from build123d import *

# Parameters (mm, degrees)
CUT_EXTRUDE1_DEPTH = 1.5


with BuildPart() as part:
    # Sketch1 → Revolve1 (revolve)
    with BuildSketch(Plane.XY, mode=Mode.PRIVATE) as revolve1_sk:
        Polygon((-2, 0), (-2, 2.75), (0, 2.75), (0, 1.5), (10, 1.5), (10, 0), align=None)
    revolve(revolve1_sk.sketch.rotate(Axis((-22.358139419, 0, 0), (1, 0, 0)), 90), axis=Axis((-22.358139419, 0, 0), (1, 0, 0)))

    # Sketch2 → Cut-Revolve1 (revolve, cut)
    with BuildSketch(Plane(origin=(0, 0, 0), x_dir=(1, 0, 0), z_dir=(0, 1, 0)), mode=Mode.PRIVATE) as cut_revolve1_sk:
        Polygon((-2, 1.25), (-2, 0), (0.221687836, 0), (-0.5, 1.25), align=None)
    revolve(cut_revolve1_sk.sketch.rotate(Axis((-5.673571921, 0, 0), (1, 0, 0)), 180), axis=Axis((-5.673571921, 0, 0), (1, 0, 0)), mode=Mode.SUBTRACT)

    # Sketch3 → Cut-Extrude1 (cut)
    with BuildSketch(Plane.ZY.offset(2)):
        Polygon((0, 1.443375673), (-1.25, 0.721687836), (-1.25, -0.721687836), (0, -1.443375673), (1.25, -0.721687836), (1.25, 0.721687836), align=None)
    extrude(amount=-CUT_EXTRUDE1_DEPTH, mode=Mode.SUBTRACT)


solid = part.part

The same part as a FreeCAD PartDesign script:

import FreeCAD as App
import Part
import Sketcher

V = App.Vector
Q = App.Units.Quantity

doc = App.newDocument("Part")
body = doc.addObject("PartDesign::Body", "Body")

# Sketch on XY plane
sketch1 = doc.addObject("Sketcher::SketchObject", "Sketch")
body.addObject(sketch1)
sketch1.AttachmentSupport = (doc.XY_Plane, [""])
sketch1.MapMode = "FlatFace"
sketch1.addGeometry([
    Part.LineSegment(V(-2, 2.8, 0), V(-2, 0, 0)),  # 0
    Part.LineSegment(V(-2, 0, 0), V(10, 0, 0)),  # 1
    Part.LineSegment(V(10, 0, 0), V(10, 1.5, 0)),  # 2
    Part.LineSegment(V(10, 1.5, 0), V(0, 1.5, 0)),  # 3
    Part.LineSegment(V(0, 1.5, 0), V(0, 2.8, 0)),  # 4
    Part.LineSegment(V(0, 2.8, 0), V(-2, 2.8, 0)),  # 5
], False)
sketch1.addConstraint([
    Sketcher.Constraint("Coincident", 0, 2, 1, 1),
    Sketcher.Constraint("Coincident", 1, 2, 2, 1),
    Sketcher.Constraint("Coincident", 2, 2, 3, 1),
    Sketcher.Constraint("Coincident", 3, 2, 4, 1),
    Sketcher.Constraint("Coincident", 4, 2, 5, 1),
    Sketcher.Constraint("Coincident", 5, 2, 0, 1),
    Sketcher.Constraint("Vertical", 0),
    Sketcher.Constraint("Horizontal", 1),
    Sketcher.Constraint("Vertical", 2),
    Sketcher.Constraint("Horizontal", 3),
    Sketcher.Constraint("Vertical", 4),
    Sketcher.Constraint("Horizontal", 5),
    Sketcher.Constraint("PointOnObject", 0, 2, -1),
    Sketcher.Constraint("PointOnObject", 3, 2, -2),
    Sketcher.Constraint("DistanceX", 1, 1, 1, 2, Q("12 mm")),
    Sketcher.Constraint("DistanceX", 3, 2, 3, 1, Q("10 mm")),
    Sketcher.Constraint("DistanceY", 2, 1, 2, 2, Q("1.5 mm")),
    Sketcher.Constraint("DistanceY", 0, 2, 0, 1, Q("2.75 mm")),
])
revolution = doc.addObject("PartDesign::Revolution", "Revolution")
body.addObject(revolution)
revolution.Profile = sketch1
revolution.ReferenceAxis = (sketch1, ["H_Axis"])
revolution.Angle = 360

# Sketch on XZ plane
sketch2 = doc.addObject("Sketcher::SketchObject", "Sketch001")
body.addObject(sketch2)
sketch2.AttachmentSupport = (doc.XZ_Plane, [""])
sketch2.MapMode = "FlatFace"
sketch2.addGeometry([
    Part.LineSegment(V(-2, -1.2, 0), V(-2, 0, 0)),
    Part.LineSegment(V(-2, 0, 0), V(0.2, 0, 0)),
    Part.LineSegment(V(0.2, 0, 0), V(-0.5, -1.2, 0)),
    Part.LineSegment(V(-0.5, -1.2, 0), V(-2, -1.2, 0)),
], False)
sketch2.addConstraint([
    Sketcher.Constraint("Coincident", 0, 2, 1, 1),
    Sketcher.Constraint("Coincident", 1, 2, 2, 1),
    Sketcher.Constraint("Coincident", 2, 2, 3, 1),
    Sketcher.Constraint("Coincident", 3, 2, 0, 1),
    Sketcher.Constraint("Vertical", 0),
    Sketcher.Constraint("Horizontal", 1),
    Sketcher.Constraint("Horizontal", 3),
    Sketcher.Constraint("PointOnObject", 0, 2, -1),
    Sketcher.Constraint("Angle", 2, Q("-120 deg")),
    Sketcher.Constraint("DistanceX", 3, 2, 3, 1, Q("1.5 mm")),
    Sketcher.Constraint("DistanceX", 0, 2, -1, 1, Q("2 mm")),
    Sketcher.Constraint("DistanceY", 0, 1, 0, 2, Q("1.25 mm")),
])
groove = doc.addObject("PartDesign::Groove", "Groove")
body.addObject(groove)
groove.Profile = sketch2
groove.ReferenceAxis = (sketch2, ["H_Axis"])
groove.Angle = 360

# Sketch on YZ plane
sketch3 = doc.addObject("Sketcher::SketchObject", "Sketch002")
body.addObject(sketch3)
sketch3.AttachmentSupport = (doc.YZ_Plane, [""])
sketch3.MapMode = "FlatFace"
sketch3.AttachmentOffset = App.Placement(V(0, 0, -2), App.Rotation())
sketch3.addGeometry([
    Part.LineSegment(V(1.4, 0, 0), V(0.7, -1.2, 0)),  # 0
    Part.LineSegment(V(0.7, -1.2, 0), V(-0.7, -1.2, 0)),  # 1
    Part.LineSegment(V(-0.7, -1.2, 0), V(-1.4, 0, 0)),  # 2
    Part.LineSegment(V(-1.4, 0, 0), V(-0.7, 1.2, 0)),  # 3
    Part.LineSegment(V(-0.7, 1.2, 0), V(0.7, 1.2, 0)),  # 4
    Part.LineSegment(V(0.7, 1.2, 0), V(1.4, 0, 0)),  # 5
], False)
sketch3.addConstraint([
    Sketcher.Constraint("Coincident", 0, 2, 1, 1),
    Sketcher.Constraint("Coincident", 1, 2, 2, 1),
    Sketcher.Constraint("Coincident", 2, 2, 3, 1),
    Sketcher.Constraint("Coincident", 3, 2, 4, 1),
    Sketcher.Constraint("Coincident", 4, 2, 5, 1),
    Sketcher.Constraint("Coincident", 5, 2, 0, 1),
    Sketcher.Constraint("Horizontal", 1),
    Sketcher.Constraint("Horizontal", 4),
    Sketcher.Constraint("Symmetric", 0, 2, 3, 2, -1, 1),
    Sketcher.Constraint("Symmetric", 2, 2, 5, 2, -1, 1),
    Sketcher.Constraint("PointOnObject", 2, 2, -1),
    Sketcher.Constraint("Parallel", 2, 5),
    Sketcher.Constraint("Vertical", 1, 2, 3, 2),
    Sketcher.Constraint("Angle", 0, Q("-120 deg")),
    Sketcher.Constraint("DistanceY", 1, 2, 3, 2, Q("2.5 mm")),
    Sketcher.Constraint("DistanceX", 1, 2, 1, 1, Q("1.443376 mm")),
])
pocket1 = doc.addObject("PartDesign::Pocket", "Pocket")
body.addObject(pocket1)
pocket1.Profile = sketch3
pocket1.Length = 1.5
pocket1.Reversed = True

doc.recompute()
